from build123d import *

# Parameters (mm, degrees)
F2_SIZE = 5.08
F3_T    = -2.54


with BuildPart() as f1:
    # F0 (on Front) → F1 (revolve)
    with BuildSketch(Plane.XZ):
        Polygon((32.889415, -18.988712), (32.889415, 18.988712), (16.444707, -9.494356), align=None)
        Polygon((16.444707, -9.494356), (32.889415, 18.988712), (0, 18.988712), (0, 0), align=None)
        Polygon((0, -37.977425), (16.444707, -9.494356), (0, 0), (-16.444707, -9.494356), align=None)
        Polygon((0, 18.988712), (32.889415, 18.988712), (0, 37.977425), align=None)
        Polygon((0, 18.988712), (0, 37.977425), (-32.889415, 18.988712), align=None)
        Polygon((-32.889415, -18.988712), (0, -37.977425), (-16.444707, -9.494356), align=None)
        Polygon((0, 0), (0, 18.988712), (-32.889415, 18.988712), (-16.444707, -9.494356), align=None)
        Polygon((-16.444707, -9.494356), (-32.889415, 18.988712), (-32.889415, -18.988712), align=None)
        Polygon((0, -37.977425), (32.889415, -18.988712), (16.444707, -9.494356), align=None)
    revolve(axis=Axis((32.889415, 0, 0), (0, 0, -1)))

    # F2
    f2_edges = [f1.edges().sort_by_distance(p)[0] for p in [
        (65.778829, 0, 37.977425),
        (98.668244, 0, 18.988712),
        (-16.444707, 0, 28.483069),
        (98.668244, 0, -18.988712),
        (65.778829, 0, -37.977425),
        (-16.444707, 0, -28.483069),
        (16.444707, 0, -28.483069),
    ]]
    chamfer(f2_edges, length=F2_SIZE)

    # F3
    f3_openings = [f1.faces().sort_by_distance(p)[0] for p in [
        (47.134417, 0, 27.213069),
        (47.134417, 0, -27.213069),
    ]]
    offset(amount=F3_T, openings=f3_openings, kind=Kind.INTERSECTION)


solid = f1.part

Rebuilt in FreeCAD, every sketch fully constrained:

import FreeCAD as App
import Part
import Sketcher
from FreeCAD import Vector
Q = App.Units.Quantity


def edges_at(feature, points):
    """Names of the edges that pass closest to the given points."""
    edges = feature.Shape.Edges
    near = lambda p: min(range(len(edges)), key=lambda i: edges[i].distToShape(Part.Vertex(*p))[0])
    return sorted({f"Edge{near(p) + 1}" for p in points})


def faces_at(feature, points):
    """Names of the faces that lie closest to the given points."""
    faces = feature.Shape.Faces
    near = lambda p: min(range(len(faces)), key=lambda i: faces[i].distToShape(Part.Vertex(*p))[0])
    return sorted({f"Face{near(p) + 1}" for p in points})


def add_polygon(sketch, points):
    """Adds a closed chain of lines whose ends are joined by coincident constraints."""
    first, n = sketch.GeometryCount, len(points)
    for a, b in zip(points, points[1:] + points[:1]):
        sketch.addGeometry(Part.LineSegment(App.Vector(*a, 0), App.Vector(*b, 0)), False)
    for i in range(n):
        sketch.addConstraint(Sketcher.Constraint("Coincident", first + i, 2, first + (i + 1) % n, 1))

doc = App.newDocument("Part")
params = doc.addObject("Spreadsheet::Sheet", "Params")
for row, (alias, value) in enumerate([
    ("revolution_angle", "360 deg"),
    ("chamfer_size", "0.2 in"),
    ("thickness_wall", "0.1 in"),
], start=1):
    params.set(f"A{row}", alias)
    params.set(f"B{row}", "=" + value)
    params.setAlias(f"B{row}", alias)

body = doc.addObject("PartDesign::Body", "Body")

sketch1 = body.newObject("Sketcher::SketchObject", "Sketch")
sketch1.AttachmentSupport = (doc.getObject("XZ_Plane"), [""])
sketch1.MapMode = "FlatFace"
add_polygon(sketch1, [(33, -19), (33, 19), (0, 38), (-33, 19), (-33, -19), (0, -38)])
sketch1.addGeometry(Part.LineSegment(Vector(33, 38, 0), Vector(33, -38, 0)), True)
sketch1.addConstraint(Sketcher.Constraint("Vertical", 0))
sketch1.addConstraint(Sketcher.Constraint("Vertical", 3))
sketch1.addConstraint(Sketcher.Constraint("Vertical", 6))
sketch1.addConstraint(Sketcher.Constraint("Symmetric", 0, 2, 3, 2, -1, 1))
sketch1.addConstraint(Sketcher.Constraint("Symmetric", 1, 2, 4, 2, -1, 1))
sketch1.addConstraint(Sketcher.Constraint("PointOnObject", 1, 2, -2))
sketch1.addConstraint(Sketcher.Constraint("Parallel", 2, 5))
sketch1.addConstraint(Sketcher.Constraint("Horizontal", 0, 2, 2, 2))
sketch1.addConstraint(Sketcher.Constraint("Horizontal", 1, 2, 6, 1))
sketch1.addConstraint(Sketcher.Constraint("Horizontal", 4, 2, 6, 2))
sketch1.addConstraint(Sketcher.Constraint("Vertical", 5, 2, 6, 1))
sketch1.addConstraint(Sketcher.Constraint("Angle", 1, Q("149.999999 deg")))
sketch1.addConstraint(Sketcher.Constraint("DistanceY", 6, 2, 6, 1, 75.95485))
sketch1.addConstraint(Sketcher.Constraint("DistanceY", 0, 1, 0, 2, 37.977424))
revolution = body.newObject("PartDesign::Revolution", "Revolution")
revolution.Profile = sketch1
revolution.ReferenceAxis = (sketch1, ["Axis0"])
revolution.setExpression("Angle", "Params.revolution_angle")
doc.recompute()

chamfer = body.newObject("PartDesign::Chamfer", "Chamfer")
chamfer.Base = (revolution, edges_at(revolution, [
    (65.779, 0, 37.977),
    (98.668, 0, 18.989),
    (-16.445, 0, 28.483),
    (98.668, 0, -18.989),
    (65.779, 0, -37.977),
    (-16.445, 0, -28.483),
    (16.445, 0, -28.483),
]))
chamfer.setExpression("Size", "Params.chamfer_size")
doc.recompute()

thickness = body.newObject("PartDesign::Thickness", "Thickness")
thickness.Base = (chamfer, faces_at(chamfer, [(47.134, 0, 27.213), (47.134, 0, -27.213)]))
thickness.setExpression("Value", "Params.thickness_wall")
thickness.Reversed = True
thickness.Join = "Intersection"

doc.recompute()
